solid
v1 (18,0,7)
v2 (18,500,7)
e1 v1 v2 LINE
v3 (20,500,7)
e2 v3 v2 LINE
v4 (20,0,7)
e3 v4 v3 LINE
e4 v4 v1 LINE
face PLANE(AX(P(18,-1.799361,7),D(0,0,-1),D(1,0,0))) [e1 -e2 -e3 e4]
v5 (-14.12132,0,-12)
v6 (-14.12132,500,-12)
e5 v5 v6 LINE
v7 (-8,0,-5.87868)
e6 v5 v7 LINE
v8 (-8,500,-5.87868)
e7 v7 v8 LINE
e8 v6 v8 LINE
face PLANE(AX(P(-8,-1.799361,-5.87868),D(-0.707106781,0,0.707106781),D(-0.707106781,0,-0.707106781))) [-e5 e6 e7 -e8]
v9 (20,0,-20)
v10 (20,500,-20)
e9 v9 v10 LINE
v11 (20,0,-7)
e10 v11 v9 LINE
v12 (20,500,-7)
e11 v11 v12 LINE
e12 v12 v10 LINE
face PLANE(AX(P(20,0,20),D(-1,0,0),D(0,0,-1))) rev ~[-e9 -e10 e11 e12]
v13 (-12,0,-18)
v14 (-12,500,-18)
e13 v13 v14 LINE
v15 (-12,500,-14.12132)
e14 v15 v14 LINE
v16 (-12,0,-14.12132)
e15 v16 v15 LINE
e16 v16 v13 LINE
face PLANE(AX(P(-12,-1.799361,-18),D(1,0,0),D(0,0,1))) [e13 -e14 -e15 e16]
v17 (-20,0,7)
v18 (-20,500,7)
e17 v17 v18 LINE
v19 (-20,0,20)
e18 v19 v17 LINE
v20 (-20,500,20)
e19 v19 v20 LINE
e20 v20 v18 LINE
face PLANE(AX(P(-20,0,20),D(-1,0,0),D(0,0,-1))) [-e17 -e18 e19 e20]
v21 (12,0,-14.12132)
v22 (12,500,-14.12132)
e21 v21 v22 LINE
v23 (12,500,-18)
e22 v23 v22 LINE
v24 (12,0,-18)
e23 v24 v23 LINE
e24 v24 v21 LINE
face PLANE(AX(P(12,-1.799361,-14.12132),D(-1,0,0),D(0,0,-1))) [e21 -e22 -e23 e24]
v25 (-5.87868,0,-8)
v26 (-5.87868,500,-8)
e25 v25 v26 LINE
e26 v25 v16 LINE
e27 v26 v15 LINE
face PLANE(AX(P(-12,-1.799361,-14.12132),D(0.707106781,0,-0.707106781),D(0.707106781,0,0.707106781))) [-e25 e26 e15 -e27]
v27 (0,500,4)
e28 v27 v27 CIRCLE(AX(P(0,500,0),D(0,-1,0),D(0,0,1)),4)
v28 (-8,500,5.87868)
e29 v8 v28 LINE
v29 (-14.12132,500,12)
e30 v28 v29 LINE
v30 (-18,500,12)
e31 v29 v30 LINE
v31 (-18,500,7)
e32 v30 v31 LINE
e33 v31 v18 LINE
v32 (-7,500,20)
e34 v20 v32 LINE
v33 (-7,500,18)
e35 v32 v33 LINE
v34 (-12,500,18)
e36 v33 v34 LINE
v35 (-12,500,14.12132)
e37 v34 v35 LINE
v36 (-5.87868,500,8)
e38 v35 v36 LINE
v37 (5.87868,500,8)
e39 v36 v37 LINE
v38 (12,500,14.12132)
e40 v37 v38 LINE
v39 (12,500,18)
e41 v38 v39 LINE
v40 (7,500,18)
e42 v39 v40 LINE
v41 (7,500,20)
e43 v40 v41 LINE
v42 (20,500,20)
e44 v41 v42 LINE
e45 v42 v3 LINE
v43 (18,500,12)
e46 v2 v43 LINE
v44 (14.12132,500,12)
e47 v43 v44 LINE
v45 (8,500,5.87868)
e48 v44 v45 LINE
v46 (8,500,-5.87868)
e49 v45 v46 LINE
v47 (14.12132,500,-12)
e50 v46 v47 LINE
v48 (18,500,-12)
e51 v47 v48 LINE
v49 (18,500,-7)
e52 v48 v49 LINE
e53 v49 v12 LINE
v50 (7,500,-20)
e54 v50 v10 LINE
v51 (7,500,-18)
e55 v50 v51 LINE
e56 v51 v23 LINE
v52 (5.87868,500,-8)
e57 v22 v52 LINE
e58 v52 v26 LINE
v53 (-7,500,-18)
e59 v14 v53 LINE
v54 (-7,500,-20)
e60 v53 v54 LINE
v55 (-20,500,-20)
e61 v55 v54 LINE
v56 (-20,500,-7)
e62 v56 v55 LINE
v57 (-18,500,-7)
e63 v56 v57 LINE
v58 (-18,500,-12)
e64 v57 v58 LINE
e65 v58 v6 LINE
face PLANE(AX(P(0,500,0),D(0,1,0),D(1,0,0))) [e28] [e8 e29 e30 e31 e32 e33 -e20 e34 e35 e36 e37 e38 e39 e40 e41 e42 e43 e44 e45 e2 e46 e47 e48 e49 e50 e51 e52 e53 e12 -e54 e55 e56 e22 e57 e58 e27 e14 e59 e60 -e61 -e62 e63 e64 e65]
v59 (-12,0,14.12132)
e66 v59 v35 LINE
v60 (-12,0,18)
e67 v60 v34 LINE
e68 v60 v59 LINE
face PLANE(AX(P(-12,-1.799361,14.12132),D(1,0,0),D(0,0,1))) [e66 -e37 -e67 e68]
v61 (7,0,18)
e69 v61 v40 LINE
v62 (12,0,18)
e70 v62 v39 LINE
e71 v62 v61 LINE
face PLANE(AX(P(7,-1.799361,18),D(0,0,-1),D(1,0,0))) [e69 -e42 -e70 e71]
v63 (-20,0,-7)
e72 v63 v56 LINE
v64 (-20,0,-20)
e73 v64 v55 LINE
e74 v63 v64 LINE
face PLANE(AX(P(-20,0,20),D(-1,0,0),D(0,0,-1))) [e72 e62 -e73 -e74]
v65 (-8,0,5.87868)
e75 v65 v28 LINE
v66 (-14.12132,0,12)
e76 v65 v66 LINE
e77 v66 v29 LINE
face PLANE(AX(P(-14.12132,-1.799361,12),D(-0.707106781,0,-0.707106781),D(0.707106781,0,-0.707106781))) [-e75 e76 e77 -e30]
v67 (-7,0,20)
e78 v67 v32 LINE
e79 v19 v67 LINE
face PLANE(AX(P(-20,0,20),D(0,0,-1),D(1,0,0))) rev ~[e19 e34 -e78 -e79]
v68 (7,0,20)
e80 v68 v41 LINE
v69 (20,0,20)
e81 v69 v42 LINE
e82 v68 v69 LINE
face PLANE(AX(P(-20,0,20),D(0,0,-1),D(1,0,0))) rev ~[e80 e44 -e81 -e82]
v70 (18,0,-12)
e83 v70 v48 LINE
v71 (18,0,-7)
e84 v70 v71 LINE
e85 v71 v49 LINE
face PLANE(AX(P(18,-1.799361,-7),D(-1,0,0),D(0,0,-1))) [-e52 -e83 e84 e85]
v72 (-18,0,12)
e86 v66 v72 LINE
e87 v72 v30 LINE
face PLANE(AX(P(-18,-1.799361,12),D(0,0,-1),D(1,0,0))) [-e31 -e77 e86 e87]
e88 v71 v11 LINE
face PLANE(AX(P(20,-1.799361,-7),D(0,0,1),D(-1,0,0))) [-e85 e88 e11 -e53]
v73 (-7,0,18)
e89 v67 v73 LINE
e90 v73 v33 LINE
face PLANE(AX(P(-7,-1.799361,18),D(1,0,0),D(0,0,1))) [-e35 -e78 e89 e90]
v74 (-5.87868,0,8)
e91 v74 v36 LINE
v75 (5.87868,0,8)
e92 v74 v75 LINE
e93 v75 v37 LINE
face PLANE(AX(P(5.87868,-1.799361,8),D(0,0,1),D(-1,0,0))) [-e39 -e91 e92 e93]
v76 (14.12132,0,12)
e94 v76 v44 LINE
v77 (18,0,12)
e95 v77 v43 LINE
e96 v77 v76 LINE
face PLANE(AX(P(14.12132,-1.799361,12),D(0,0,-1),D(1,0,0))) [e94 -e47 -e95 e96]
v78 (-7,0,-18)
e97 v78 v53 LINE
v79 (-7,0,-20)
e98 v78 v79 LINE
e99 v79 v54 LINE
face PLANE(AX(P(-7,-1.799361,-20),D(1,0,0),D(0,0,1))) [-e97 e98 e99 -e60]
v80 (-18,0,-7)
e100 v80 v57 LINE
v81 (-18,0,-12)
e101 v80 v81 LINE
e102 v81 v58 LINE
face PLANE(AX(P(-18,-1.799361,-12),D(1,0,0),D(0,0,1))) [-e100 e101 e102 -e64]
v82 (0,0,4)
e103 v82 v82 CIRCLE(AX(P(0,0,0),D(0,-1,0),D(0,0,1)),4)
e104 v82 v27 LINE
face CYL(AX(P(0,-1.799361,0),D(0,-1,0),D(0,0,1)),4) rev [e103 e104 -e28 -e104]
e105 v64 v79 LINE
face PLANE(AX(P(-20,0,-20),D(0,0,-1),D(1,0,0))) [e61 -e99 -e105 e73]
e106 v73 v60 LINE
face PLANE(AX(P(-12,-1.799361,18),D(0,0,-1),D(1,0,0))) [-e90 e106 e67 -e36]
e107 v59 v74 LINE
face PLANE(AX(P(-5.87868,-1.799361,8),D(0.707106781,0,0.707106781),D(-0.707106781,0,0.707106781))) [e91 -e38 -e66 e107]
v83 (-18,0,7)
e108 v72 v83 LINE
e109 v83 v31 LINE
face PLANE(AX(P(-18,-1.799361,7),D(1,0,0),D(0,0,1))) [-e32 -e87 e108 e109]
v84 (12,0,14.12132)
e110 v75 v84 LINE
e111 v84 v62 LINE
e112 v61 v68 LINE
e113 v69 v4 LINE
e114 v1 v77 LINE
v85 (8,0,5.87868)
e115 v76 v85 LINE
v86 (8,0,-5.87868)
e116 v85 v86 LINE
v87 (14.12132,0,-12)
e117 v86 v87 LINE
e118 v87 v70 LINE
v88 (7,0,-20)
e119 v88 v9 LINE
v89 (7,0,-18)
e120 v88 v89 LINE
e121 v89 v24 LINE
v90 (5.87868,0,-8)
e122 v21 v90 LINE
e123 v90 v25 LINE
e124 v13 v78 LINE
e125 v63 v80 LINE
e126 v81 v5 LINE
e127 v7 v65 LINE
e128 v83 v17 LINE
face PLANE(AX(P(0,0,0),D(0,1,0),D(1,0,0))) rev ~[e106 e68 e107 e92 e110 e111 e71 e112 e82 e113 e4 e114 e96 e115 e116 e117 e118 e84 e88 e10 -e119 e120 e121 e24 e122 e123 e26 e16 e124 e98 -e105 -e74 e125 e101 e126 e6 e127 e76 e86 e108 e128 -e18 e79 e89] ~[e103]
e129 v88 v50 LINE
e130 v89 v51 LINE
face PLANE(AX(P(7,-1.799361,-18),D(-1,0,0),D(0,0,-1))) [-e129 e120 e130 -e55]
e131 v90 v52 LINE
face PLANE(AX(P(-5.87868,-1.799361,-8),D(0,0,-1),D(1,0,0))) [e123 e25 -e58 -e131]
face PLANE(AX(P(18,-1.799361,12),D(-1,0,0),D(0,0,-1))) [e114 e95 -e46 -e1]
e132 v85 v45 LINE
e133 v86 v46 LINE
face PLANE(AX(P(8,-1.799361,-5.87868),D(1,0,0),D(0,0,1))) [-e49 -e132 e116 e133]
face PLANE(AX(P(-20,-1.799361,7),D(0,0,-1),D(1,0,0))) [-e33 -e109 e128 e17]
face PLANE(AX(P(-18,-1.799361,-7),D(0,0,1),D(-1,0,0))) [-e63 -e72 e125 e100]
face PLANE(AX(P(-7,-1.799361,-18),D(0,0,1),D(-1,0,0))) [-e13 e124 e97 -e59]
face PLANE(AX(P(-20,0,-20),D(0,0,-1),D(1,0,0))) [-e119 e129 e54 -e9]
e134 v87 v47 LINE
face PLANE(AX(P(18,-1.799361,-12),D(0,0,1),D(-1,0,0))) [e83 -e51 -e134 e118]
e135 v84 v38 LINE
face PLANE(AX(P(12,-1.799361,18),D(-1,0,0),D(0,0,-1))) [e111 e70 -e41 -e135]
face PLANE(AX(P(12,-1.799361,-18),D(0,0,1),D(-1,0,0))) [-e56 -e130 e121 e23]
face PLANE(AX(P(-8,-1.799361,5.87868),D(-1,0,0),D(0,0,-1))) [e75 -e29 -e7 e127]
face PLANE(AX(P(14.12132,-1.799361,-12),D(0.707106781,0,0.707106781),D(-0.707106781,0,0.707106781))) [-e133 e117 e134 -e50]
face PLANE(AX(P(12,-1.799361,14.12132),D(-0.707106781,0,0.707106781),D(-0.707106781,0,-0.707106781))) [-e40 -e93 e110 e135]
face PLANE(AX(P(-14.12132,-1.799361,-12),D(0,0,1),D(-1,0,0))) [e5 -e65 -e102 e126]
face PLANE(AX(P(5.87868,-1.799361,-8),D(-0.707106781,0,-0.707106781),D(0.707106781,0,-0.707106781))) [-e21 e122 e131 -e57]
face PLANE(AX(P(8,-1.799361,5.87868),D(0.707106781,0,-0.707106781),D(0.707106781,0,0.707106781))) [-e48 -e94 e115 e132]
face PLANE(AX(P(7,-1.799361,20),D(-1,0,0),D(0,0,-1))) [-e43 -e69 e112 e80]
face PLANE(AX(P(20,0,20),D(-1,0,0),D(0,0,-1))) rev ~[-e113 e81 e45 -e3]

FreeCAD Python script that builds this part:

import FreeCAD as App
import Part
import Sketcher

doc = App.newDocument("Part")
body = doc.addObject("PartDesign::Body", "Body")

# Sketch on XZ plane
sketch1 = body.newObject("Sketcher::SketchObject", "Sketch")
sketch1.AttachmentSupport = (doc.getObject("XZ_Plane"), [""])
sketch1.MapMode = "FlatFace"
sketch1.addGeometry([
    Part.LineSegment(App.Vector(-20, -20, 0), App.Vector(-20, 20, 0)),
    Part.LineSegment(App.Vector(-20, 20, 0), App.Vector(20, 20, 0)),
    Part.LineSegment(App.Vector(20, 20, 0), App.Vector(20, -20, 0)),
    Part.LineSegment(App.Vector(20, -20, 0), App.Vector(-20, -20, 0)),
], False)
sketch1.addConstraint([
    Sketcher.Constraint("Coincident", 0, 2, 1, 1),
    Sketcher.Constraint("Coincident", 1, 2, 2, 1),
    Sketcher.Constraint("Coincident", 2, 2, 3, 1),
    Sketcher.Constraint("Coincident", 3, 2, 0, 1),
    Sketcher.Constraint("Vertical", 0),
    Sketcher.Constraint("Horizontal", 1),
    Sketcher.Constraint("Vertical", 2),
    Sketcher.Constraint("Horizontal", 3),
    Sketcher.Constraint("Symmetric", 0, 2, 2, 2, -1, 1),
    Sketcher.Constraint("Equal", 3, 0),
    Sketcher.Constraint("DistanceX", 1, 1, 1, 2, 40.0),
])
pad1 = body.newObject("PartDesign::Pad", "Pad")
pad1.Profile = sketch1
pad1.Length = 500
pad1.Reversed = True

# Sketch on XZ plane
sketch2 = body.newObject("Sketcher::SketchObject", "Sketch001")
sketch2.AttachmentSupport = (doc.getObject("XZ_Plane"), [""])
sketch2.MapMode = "FlatFace"
sketch2.AttachmentOffset = App.Placement(App.Vector(0, 0, -500), App.Rotation())
sketch2.addGeometry([
    Part.Circle(App.Vector(0, 0, 0), App.Vector(0, 0, 1), 4),  # 0
    Part.LineSegment(App.Vector(-7, -20, 0), App.Vector(-7, -18, 0)),  # 1
    Part.LineSegment(App.Vector(-7, -18, 0), App.Vector(-12, -18, 0)),  # 2
    Part.LineSegment(App.Vector(-12, -18, 0), App.Vector(-12, -14.12132, 0)),  # 3
    Part.LineSegment(App.Vector(-12, -14.12132, 0), App.Vector(-5.87868, -8, 0)),  # 4
    Part.LineSegment(App.Vector(-5.87868, -8, 0), App.Vector(5.87868, -8, 0)),  # 5
    Part.LineSegment(App.Vector(5.87868, -8, 0), App.Vector(12, -14.12132, 0)),  # 6
    Part.LineSegment(App.Vector(12, -14.12132, 0), App.Vector(12, -18, 0)),  # 7
    Part.LineSegment(App.Vector(12, -18, 0), App.Vector(7, -18, 0)),  # 8
    Part.LineSegment(App.Vector(7, -18, 0), App.Vector(7, -20, 0)),  # 9
    Part.LineSegment(App.Vector(7, -20, 0), App.Vector(-7, -20, 0)),  # 10
    Part.LineSegment(App.Vector(20, -7, 0), App.Vector(18, -7, 0)),  # 11
    Part.LineSegment(App.Vector(18, -7, 0), App.Vector(18, -12, 0)),  # 12
    Part.LineSegment(App.Vector(18, -12, 0), App.Vector(14.12132, -12, 0)),  # 13
    Part.LineSegment(App.Vector(14.12132, -12, 0), App.Vector(8, -5.87868, 0)),  # 14
    Part.LineSegment(App.Vector(8, -5.87868, 0), App.Vector(8, 5.87868, 0)),  # 15
    Part.LineSegment(App.Vector(8, 5.87868, 0), App.Vector(14.12132, 12, 0)),  # 16
    Part.LineSegment(App.Vector(14.12132, 12, 0), App.Vector(18, 12, 0)),  # 17
    Part.LineSegment(App.Vector(18, 12, 0), App.Vector(18, 7, 0)),  # 18
    Part.LineSegment(App.Vector(18, 7, 0), App.Vector(20, 7, 0)),  # 19
    Part.LineSegment(App.Vector(20, 7, 0), App.Vector(20, -7, 0)),  # 20
    Part.LineSegment(App.Vector(7, 20, 0), App.Vector(7, 18, 0)),  # 21
    Part.LineSegment(App.Vector(7, 18, 0), App.Vector(12, 18, 0)),  # 22
    Part.LineSegment(App.Vector(12, 18, 0), App.Vector(12, 14.12132, 0)),  # 23
    Part.LineSegment(App.Vector(12, 14.12132, 0), App.Vector(5.87868, 8, 0)),  # 24
    Part.LineSegment(App.Vector(5.87868, 8, 0), App.Vector(-5.87868, 8, 0)),  # 25
    Part.LineSegment(App.Vector(-5.87868, 8, 0), App.Vector(-12, 14.12132, 0)),  # 26
    Part.LineSegment(App.Vector(-12, 14.12132, 0), App.Vector(-12, 18, 0)),  # 27
    Part.LineSegment(App.Vector(-12, 18, 0), App.Vector(-7, 18, 0)),  # 28
    Part.LineSegment(App.Vector(-7, 18, 0), App.Vector(-7, 20, 0)),  # 29
    Part.LineSegment(App.Vector(-7, 20, 0), App.Vector(7, 20, 0)),  # 30
    Part.LineSegment(App.Vector(-20, 7, 0), App.Vector(-18, 7, 0)),  # 31
    Part.LineSegment(App.Vector(-18, 7, 0), App.Vector(-18, 12, 0)),  # 32
    Part.LineSegment(App.Vector(-18, 12, 0), App.Vector(-14.12132, 12, 0)),  # 33
    Part.LineSegment(App.Vector(-14.12132, 12, 0), App.Vector(-8, 5.87868, 0)),  # 34
    Part.LineSegment(App.Vector(-8, 5.87868, 0), App.Vector(-8, -5.87868, 0)),  # 35
    Part.LineSegment(App.Vector(-8, -5.87868, 0), App.Vector(-14.12132, -12, 0)),  # 36
    Part.LineSegment(App.Vector(-14.12132, -12, 0), App.Vector(-18, -12, 0)),  # 37
    Part.LineSegment(App.Vector(-18, -12, 0), App.Vector(-18, -7, 0)),  # 38
    Part.LineSegment(App.Vector(-18, -7, 0), App.Vector(-20, -7, 0)),  # 39
    Part.LineSegment(App.Vector(-20, -7, 0), App.Vector(-20, 7, 0)),  # 40
], False)
sketch2.addConstraint([
    Sketcher.Constraint("Coincident", 1, 2, 2, 1),
    Sketcher.Constraint("Coincident", 2, 2, 3, 1),
    Sketcher.Constraint("Coincident", 3, 2, 4, 1),
    Sketcher.Constraint("Coincident", 4, 2, 5, 1),
    Sketcher.Constraint("Coincident", 5, 2, 6, 1),
    Sketcher.Constraint("Coincident", 6, 2, 7, 1),
    Sketcher.Constraint("Coincident", 7, 2, 8, 1),
    Sketcher.Constraint("Coincident", 8, 2, 9, 1),
    Sketcher.Constraint("Coincident", 9, 2, 10, 1),
    Sketcher.Constraint("Coincident", 10, 2, 1, 1),
    Sketcher.Constraint("Coincident", 11, 2, 12, 1),
    Sketcher.Constraint("Coincident", 12, 2, 13, 1),
    Sketcher.Constraint("Coincident", 13, 2, 14, 1),
    Sketcher.Constraint("Coincident", 14, 2, 15, 1),
    Sketcher.Constraint("Coincident", 15, 2, 16, 1),
    Sketcher.Constraint("Coincident", 16, 2, 17, 1),
    Sketcher.Constraint("Coincident", 17, 2, 18, 1),
    Sketcher.Constraint("Coincident", 18, 2, 19, 1),
    Sketcher.Constraint("Coincident", 19, 2, 20, 1),
    Sketcher.Constraint("Coincident", 20, 2, 11, 1),
    Sketcher.Constraint("Coincident", 21, 2, 22, 1),
    Sketcher.Constraint("Coincident", 22, 2, 23, 1),
    Sketcher.Constraint("Coincident", 23, 2, 24, 1),
    Sketcher.Constraint("Coincident", 24, 2, 25, 1),
    Sketcher.Constraint("Coincident", 25, 2, 26, 1),
    Sketcher.Constraint("Coincident", 26, 2, 27, 1),
    Sketcher.Constraint("Coincident", 27, 2, 28, 1),
    Sketcher.Constraint("Coincident", 28, 2, 29, 1),
    Sketcher.Constraint("Coincident", 29, 2, 30, 1),
    Sketcher.Constraint("Coincident", 30, 2, 21, 1),
    Sketcher.Constraint("Coincident", 31, 2, 32, 1),
    Sketcher.Constraint("Coincident", 32, 2, 33, 1),
    Sketcher.Constraint("Coincident", 33, 2, 34, 1),
    Sketcher.Constraint("Coincident", 34, 2, 35, 1),
    Sketcher.Constraint("Coincident", 35, 2, 36, 1),
    Sketcher.Constraint("Coincident", 36, 2, 37, 1),
    Sketcher.Constraint("Coincident", 37, 2, 38, 1),
    Sketcher.Constraint("Coincident", 38, 2, 39, 1),
    Sketcher.Constraint("Coincident", 39, 2, 40, 1),
    Sketcher.Constraint("Coincident", 40, 2, 31, 1),
    Sketcher.Constraint("Vertical", 1),
    Sketcher.Constraint("Horizontal", 2),
    Sketcher.Constraint("Vertical", 3),
    Sketcher.Constraint("Horizontal", 5),
    Sketcher.Constraint("Vertical", 7),
    Sketcher.Constraint("Horizontal", 8),
    Sketcher.Constraint("Vertical", 9),
    Sketcher.Constraint("Horizontal", 10),
    Sketcher.Constraint("Horizontal", 11),
    Sketcher.Constraint("Vertical", 12),
    Sketcher.Constraint("Horizontal", 13),
    Sketcher.Constraint("Vertical", 15),
    Sketcher.Constraint("Horizontal", 17),
    Sketcher.Constraint("Vertical", 18),
    Sketcher.Constraint("Horizontal", 19),
    Sketcher.Constraint("Vertical", 20),
    Sketcher.Constraint("Vertical", 21),
    Sketcher.Constraint("Horizontal", 22),
    Sketcher.Constraint("Vertical", 23),
    Sketcher.Constraint("Horizontal", 25),
    Sketcher.Constraint("Vertical", 27),
    Sketcher.Constraint("Horizontal", 28),
    Sketcher.Constraint("Vertical", 29),
    Sketcher.Constraint("Horizontal", 30),
    Sketcher.Constraint("Horizontal", 31),
    Sketcher.Constraint("Vertical", 32),
    Sketcher.Constraint("Horizontal", 33),
    Sketcher.Constraint("Vertical", 35),
    Sketcher.Constraint("Horizontal", 37),
    Sketcher.Constraint("Vertical", 38),
    Sketcher.Constraint("Horizontal", 39),
    Sketcher.Constraint("Vertical", 40),
    Sketcher.Constraint("Coincident", 0, 3, -1, 1),
    Sketcher.Constraint("Symmetric", 1, 2, 21, 2, -1, 1),
    Sketcher.Constraint("Symmetric", 3, 2, 23, 2, -1, 1),
    Sketcher.Constraint("Symmetric", 4, 2, 24, 2, -1, 1),
    Sketcher.Constraint("Symmetric", 6, 2, 26, 2, -1, 1),
    Sketcher.Constraint("Symmetric", 8, 2, 28, 2, -1, 1),
    Sketcher.Constraint("Symmetric", 11, 2, 31, 2, -1, 1),
    Sketcher.Constraint("Symmetric", 13, 2, 33, 2, -1, 1),
    Sketcher.Constraint("Symmetric", 14, 2, 34, 2, -1, 1),
    Sketcher.Constraint("Symmetric", 16, 2, 36, 2, -1, 1),
    Sketcher.Constraint("Symmetric", 18, 2, 38, 2, -1, 1),
    Sketcher.Constraint("Symmetric", 3, 2, 6, 2, -2),
    Sketcher.Constraint("Symmetric", 1, 2, 8, 2, -2),
    Sketcher.Constraint("Symmetric", 18, 2, 31, 2, -2),
    Sketcher.Constraint("Symmetric", 16, 2, 33, 2, -2),
    Sketcher.Constraint("Perpendicular", 4, 6),
    Sketcher.Constraint("Parallel", 6, 14),
    Sketcher.Constraint("Perpendicular", 14, 16),
    Sketcher.Constraint("Perpendicular", 24, 26),
    Sketcher.Constraint("Perpendicular", 34, 36),
    Sketcher.Constraint("Horizontal", 15, 2, 34, 2),
    Sketcher.Constraint("Equal", 19, 31),
    Sketcher.Constraint("Equal", 39, 1),
    Sketcher.Constraint("Equal", 37, 3),
    Sketcher.Constraint("Equal", 28, 12),
    Sketcher.Constraint("Equal", 25, 15),
    Sketcher.Constraint("Equal", 30, 20),
    Sketcher.Constraint("Equal", 9, 21),
    Sketcher.Constraint("Diameter", 0, 8.0),
    Sketcher.Constraint("DistanceX", 2, 2, 2, 1, 5.0),
    Sketcher.Constraint("DistanceX", 10, 2, 10, 1, 14.0),
    Sketcher.Constraint("DistanceX", 11, 2, 11, 1, 2.0),
    Sketcher.Constraint("DistanceY", 1, 2, -1, 1, 18.0),
    Sketcher.Constraint("DistanceY", 4, 2, -1, 1, 8.0),
    Sketcher.Constraint("DistanceX", -1, 1, 11, 2, 18.0),
    Sketcher.Constraint("DistanceX", 5, 1, 5, 2, 11.757359),
])
pocket1 = body.newObject("PartDesign::Pocket", "Pocket")
pocket1.Profile = sketch2
pocket1.Type = "ThroughAll"
pocket1.Midplane = True

doc.recompute()
